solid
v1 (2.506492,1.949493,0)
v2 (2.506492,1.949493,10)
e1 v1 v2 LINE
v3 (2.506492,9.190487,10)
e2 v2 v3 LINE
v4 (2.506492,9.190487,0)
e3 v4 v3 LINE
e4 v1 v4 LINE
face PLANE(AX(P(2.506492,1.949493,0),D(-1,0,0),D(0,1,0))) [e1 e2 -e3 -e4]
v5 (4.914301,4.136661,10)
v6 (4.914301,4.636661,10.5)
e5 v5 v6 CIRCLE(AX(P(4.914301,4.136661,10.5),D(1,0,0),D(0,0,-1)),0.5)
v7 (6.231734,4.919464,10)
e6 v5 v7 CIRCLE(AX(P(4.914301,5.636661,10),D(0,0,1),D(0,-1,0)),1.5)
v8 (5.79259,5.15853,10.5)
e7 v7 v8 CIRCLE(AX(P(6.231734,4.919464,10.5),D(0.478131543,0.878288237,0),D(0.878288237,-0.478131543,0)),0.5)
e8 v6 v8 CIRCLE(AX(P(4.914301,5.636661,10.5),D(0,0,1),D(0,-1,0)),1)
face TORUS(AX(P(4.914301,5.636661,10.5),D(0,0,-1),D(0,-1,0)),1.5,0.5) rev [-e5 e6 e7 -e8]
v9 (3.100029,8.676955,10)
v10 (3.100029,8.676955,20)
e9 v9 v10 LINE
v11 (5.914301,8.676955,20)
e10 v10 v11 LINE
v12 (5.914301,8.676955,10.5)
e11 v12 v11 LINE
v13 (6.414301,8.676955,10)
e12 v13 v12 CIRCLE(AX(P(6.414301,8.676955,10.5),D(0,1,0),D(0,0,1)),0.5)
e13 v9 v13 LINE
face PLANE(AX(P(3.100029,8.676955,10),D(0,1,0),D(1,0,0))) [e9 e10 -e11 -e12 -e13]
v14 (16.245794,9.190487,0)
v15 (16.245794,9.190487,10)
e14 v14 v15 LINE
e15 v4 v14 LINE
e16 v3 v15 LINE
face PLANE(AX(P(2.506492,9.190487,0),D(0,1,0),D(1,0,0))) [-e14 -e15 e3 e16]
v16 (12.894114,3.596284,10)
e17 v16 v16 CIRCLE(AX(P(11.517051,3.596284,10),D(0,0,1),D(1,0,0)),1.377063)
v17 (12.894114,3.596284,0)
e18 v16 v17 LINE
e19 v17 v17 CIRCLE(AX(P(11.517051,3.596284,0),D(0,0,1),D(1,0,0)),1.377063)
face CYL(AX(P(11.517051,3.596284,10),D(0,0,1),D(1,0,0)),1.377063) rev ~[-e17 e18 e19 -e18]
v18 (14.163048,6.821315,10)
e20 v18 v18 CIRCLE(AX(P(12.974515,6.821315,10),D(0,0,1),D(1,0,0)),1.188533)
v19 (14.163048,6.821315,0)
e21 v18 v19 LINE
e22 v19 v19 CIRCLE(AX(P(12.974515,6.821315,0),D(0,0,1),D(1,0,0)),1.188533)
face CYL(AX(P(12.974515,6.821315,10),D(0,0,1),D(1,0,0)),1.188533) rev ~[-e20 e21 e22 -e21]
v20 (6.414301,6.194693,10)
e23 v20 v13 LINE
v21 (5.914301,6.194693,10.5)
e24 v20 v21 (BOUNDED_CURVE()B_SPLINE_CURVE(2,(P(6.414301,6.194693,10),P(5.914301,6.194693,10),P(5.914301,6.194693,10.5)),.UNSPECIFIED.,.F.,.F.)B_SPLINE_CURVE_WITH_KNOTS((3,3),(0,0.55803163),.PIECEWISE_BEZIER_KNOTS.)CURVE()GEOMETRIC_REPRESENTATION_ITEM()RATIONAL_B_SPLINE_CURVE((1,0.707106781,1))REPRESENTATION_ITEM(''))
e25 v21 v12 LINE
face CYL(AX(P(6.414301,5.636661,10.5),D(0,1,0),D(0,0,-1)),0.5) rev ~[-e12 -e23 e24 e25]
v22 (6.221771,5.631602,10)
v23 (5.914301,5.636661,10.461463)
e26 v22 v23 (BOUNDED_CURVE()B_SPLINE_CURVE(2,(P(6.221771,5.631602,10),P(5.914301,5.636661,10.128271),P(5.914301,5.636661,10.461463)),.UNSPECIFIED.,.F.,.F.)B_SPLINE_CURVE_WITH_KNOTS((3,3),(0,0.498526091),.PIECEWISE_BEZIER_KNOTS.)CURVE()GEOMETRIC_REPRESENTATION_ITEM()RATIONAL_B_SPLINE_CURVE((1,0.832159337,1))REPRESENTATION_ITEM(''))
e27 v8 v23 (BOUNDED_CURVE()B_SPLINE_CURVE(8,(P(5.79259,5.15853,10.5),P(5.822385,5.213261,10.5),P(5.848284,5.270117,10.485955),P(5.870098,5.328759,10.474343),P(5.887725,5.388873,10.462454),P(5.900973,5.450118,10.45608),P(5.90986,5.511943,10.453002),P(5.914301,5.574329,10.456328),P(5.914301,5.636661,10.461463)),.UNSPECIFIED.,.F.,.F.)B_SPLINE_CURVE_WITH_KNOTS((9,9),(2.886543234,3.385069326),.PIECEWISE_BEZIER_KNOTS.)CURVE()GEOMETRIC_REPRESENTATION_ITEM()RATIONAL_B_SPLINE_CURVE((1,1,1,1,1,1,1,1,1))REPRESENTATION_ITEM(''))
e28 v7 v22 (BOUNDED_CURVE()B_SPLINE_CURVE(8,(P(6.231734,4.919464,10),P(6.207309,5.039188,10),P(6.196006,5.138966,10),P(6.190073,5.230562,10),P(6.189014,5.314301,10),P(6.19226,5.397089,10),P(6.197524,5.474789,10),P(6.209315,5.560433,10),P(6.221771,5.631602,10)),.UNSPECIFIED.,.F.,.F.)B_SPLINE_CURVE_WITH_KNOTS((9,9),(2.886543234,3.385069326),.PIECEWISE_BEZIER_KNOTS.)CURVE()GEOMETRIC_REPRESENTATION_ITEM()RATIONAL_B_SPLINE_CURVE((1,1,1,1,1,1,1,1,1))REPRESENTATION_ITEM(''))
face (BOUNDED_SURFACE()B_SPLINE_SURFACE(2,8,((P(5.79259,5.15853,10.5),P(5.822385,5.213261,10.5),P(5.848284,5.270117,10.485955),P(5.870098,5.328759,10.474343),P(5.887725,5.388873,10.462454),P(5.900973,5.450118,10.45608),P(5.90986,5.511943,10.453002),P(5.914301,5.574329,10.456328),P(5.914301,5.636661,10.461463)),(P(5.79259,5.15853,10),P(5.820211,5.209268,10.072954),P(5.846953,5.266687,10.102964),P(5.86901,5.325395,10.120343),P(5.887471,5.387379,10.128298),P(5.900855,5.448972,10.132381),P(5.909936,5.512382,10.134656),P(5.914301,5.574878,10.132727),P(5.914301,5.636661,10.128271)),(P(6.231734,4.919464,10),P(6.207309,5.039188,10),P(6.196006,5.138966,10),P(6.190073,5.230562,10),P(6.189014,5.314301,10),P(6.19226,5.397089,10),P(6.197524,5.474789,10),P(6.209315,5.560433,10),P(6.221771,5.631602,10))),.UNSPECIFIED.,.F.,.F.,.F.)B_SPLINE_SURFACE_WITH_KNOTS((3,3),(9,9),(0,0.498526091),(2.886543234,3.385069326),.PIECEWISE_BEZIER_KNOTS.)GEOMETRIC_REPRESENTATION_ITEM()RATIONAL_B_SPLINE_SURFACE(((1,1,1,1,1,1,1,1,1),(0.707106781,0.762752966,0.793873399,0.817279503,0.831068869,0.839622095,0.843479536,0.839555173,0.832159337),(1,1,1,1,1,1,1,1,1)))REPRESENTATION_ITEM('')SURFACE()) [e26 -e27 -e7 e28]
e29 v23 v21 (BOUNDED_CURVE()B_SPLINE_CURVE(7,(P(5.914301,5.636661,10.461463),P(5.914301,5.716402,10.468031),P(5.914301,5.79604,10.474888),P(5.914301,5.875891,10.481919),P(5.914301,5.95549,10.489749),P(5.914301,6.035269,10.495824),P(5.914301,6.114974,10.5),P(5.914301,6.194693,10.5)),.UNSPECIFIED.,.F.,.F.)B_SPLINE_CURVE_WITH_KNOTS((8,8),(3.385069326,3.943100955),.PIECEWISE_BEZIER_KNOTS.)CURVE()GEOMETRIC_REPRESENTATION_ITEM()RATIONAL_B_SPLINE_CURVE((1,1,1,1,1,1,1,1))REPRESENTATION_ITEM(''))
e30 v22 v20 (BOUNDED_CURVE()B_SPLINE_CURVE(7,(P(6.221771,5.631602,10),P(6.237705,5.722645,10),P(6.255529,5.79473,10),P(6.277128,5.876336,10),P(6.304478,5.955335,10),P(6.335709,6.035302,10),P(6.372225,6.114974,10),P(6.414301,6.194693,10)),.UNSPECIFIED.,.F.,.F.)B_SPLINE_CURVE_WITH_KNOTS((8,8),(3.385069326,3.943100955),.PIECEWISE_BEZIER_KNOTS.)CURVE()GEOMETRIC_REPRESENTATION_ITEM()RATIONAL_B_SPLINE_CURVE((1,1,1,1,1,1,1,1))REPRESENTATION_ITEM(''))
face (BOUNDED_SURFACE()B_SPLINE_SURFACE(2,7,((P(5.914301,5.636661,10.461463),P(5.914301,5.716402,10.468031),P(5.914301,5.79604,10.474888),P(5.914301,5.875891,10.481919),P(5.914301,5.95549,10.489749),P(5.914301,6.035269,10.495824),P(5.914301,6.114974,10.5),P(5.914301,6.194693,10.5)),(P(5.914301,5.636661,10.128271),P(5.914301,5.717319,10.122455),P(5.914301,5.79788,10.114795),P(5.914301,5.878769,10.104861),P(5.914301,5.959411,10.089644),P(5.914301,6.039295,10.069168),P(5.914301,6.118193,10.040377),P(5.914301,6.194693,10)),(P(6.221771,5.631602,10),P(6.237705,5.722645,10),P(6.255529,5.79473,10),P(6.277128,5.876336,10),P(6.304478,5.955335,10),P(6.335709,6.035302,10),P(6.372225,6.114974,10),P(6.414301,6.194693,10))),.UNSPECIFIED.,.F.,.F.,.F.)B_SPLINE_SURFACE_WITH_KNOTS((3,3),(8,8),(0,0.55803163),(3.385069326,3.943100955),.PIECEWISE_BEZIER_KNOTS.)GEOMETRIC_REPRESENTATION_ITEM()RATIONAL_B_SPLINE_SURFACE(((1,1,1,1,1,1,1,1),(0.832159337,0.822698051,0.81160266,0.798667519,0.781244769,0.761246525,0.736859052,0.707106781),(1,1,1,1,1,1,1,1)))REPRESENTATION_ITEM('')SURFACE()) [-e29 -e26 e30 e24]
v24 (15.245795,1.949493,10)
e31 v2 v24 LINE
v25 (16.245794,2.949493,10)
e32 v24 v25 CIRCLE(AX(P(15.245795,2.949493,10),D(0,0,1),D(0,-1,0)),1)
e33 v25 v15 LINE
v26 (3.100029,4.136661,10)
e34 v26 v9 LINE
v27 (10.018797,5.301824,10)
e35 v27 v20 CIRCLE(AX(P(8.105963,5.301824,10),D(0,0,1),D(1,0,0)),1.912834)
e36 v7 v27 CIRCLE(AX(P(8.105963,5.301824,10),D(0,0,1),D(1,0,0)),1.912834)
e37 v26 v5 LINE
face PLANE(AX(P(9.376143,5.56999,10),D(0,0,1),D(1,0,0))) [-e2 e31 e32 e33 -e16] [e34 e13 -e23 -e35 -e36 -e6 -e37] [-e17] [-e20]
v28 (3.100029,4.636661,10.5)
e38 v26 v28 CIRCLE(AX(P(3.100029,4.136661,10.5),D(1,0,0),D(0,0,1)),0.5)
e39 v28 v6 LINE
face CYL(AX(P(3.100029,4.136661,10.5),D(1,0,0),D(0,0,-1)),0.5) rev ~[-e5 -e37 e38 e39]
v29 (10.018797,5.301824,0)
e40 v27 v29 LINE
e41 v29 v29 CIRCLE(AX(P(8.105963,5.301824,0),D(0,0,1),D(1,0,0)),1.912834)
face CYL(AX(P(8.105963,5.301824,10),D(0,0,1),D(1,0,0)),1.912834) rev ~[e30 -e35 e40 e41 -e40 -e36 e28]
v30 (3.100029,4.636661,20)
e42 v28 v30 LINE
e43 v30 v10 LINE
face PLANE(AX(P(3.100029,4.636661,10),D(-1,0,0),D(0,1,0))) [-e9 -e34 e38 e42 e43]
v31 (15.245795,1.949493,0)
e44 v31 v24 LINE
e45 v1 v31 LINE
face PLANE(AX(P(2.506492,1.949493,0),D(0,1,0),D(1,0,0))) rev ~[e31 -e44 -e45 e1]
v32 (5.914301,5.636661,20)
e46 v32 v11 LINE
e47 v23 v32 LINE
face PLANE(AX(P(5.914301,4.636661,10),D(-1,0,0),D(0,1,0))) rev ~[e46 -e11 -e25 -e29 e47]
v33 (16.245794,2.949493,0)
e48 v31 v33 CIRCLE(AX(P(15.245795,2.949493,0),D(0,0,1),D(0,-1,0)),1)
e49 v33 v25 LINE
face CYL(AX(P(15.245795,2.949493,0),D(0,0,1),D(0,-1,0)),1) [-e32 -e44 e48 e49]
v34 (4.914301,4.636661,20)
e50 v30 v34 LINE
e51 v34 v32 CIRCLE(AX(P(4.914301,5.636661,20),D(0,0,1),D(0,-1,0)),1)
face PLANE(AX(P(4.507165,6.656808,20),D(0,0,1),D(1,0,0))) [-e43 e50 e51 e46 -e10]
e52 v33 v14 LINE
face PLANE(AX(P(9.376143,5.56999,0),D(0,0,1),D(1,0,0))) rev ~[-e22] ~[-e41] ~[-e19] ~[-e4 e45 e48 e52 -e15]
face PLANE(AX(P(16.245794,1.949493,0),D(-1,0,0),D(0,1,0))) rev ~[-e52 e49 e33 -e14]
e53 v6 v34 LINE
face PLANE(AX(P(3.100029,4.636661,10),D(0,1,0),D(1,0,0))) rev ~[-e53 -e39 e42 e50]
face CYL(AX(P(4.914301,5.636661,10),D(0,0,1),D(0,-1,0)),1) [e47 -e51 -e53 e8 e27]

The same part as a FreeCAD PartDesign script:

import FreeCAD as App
import Part
import Sketcher
from FreeCAD import Vector


def edges_at(feature, points):
    """Names of the edges that pass closest to the given points."""
    edges = feature.Shape.Edges
    near = lambda p: min(range(len(edges)), key=lambda i: edges[i].distToShape(Part.Vertex(*p))[0])
    return sorted({f"Edge{near(p) + 1}" for p in points})


def add_polygon(sketch, points):
    """Adds a closed chain of lines whose ends are joined by coincident constraints."""
    first, n = sketch.GeometryCount, len(points)
    for a, b in zip(points, points[1:] + points[:1]):
        sketch.addGeometry(Part.LineSegment(App.Vector(*a, 0), App.Vector(*b, 0)), False)
    for i in range(n):
        sketch.addConstraint(Sketcher.Constraint("Coincident", first + i, 2, first + (i + 1) % n, 1))

doc = App.newDocument("Part")
body = doc.addObject("PartDesign::Body", "Body")

sketch1 = body.newObject("Sketcher::SketchObject", "Sketch")
sketch1.AttachmentSupport = (doc.getObject("XY_Plane"), [""])
sketch1.MapMode = "FlatFace"
add_polygon(sketch1, [(3, 9), (3, 2), (16, 2), (16, 9)])
sketch1.addConstraint([
    Sketcher.Constraint("Vertical", 0),
    Sketcher.Constraint("Horizontal", 1),
    Sketcher.Constraint("Vertical", 2),
    Sketcher.Constraint("Horizontal", 3),
    Sketcher.Constraint("DistanceX", 1, 1, 1, 2, 13.739303),
    Sketcher.Constraint("DistanceY", 0, 2, 0, 1, 7.240993),
    Sketcher.Constraint("DistanceX", -1, 1, 0, 2, 2.506492),
    Sketcher.Constraint("DistanceY", -1, 1, 0, 2, 1.949493),
])
pad1 = body.newObject("PartDesign::Pad", "Pad")
pad1.Profile = sketch1
pad1.Length = 10
doc.recompute()

fillet = body.newObject("PartDesign::Fillet", "Fillet")
fillet.Base = (pad1, edges_at(pad1, [(16.246, 1.949, 5)]))
fillet.Radius = 1

sketch2 = body.newObject("Sketcher::SketchObject", "Sketch001")
sketch2.AttachmentSupport = (doc.getObject("XY_Plane"), [""])
sketch2.MapMode = "FlatFace"
sketch2.AttachmentOffset = App.Placement(Vector(0, 0, 10), App.Rotation())
sketch2.addGeometry(Part.Circle(Vector(8.1, 5.3, 0), Vector(0, 0, 1), 1.9), False)
sketch2.addConstraint([
    Sketcher.Constraint("Diameter", 0, 3.825668),
    Sketcher.Constraint("DistanceX", -1, 1, 0, 3, 8.105963),
    Sketcher.Constraint("DistanceY", -1, 1, 0, 3, 5.301824),
])
pocket1 = body.newObject("PartDesign::Pocket", "Pocket")
pocket1.Profile = sketch2
pocket1.Type = "ThroughAll"

sketch3 = body.newObject("Sketcher::SketchObject", "Sketch002")
sketch3.AttachmentSupport = (doc.getObject("XY_Plane"), [""])
sketch3.MapMode = "FlatFace"
sketch3.AttachmentOffset = App.Placement(Vector(0, 0, 10), App.Rotation())
sketch3.addGeometry([
    Part.Circle(Vector(13, 6.8, 0), Vector(0, 0, 1), 1.2),
    Part.Circle(Vector(11.5, 3.6, 0), Vector(0, 0, 1), 1.4),
], False)
sketch3.addConstraint([
    Sketcher.Constraint("Diameter", 0, 2.377066),
    Sketcher.Constraint("Diameter", 1, 2.754126),
    Sketcher.Constraint("DistanceX", -1, 1, 1, 3, 11.517051),
    Sketcher.Constraint("DistanceY", 1, 3, 0, 3, 3.225031),
    Sketcher.Constraint("DistanceX", -1, 1, 0, 3, 12.974515),
    Sketcher.Constraint("DistanceY", -1, 1, 0, 3, 6.821315),
])
pocket2 = body.newObject("PartDesign::Pocket", "Pocket001")
pocket2.Profile = sketch3
pocket2.Type = "ThroughAll"

sketch4 = body.newObject("Sketcher::SketchObject", "Sketch003")
sketch4.AttachmentSupport = (doc.getObject("XY_Plane"), [""])
sketch4.MapMode = "FlatFace"
sketch4.AttachmentOffset = App.Placement(Vector(0, 0, 10), App.Rotation())
add_polygon(sketch4, [(3.1, 8.7), (3.1, 4.6), (5.9, 4.6), (5.9, 8.7)])
sketch4.addConstraint([
    Sketcher.Constraint("Vertical", 0),
    Sketcher.Constraint("Horizontal", 1),
    Sketcher.Constraint("Vertical", 2),
    Sketcher.Constraint("Horizontal", 3),
    Sketcher.Constraint("DistanceX", -1, 1, 1, 2, 5.914301),
    Sketcher.Constraint("DistanceX", 1, 1, 1, 2, 2.814273),
    Sketcher.Constraint("DistanceY", 0, 2, 0, 1, 4.040293),
    Sketcher.Constraint("DistanceY", -1, 1, 0, 2, 4.636661),
])
pad2 = body.newObject("PartDesign::Pad", "Pad001")
pad2.Profile = sketch4
pad2.Length = 10
doc.recompute()

fillet2 = body.newObject("PartDesign::Fillet", "Fillet001")
fillet2.Base = (pad2, edges_at(pad2, [(5.914, 4.637, 15)]))
fillet2.Radius = 1
doc.recompute()

fillet3 = body.newObject("PartDesign::Fillet", "Fillet002")
fillet3.Base = (fillet2, edges_at(fillet2, [(5.914, 7.157, 10), (5.621, 4.93, 10), (4.007, 4.637, 10)]))
fillet3.Radius = 0.5

doc.recompute()
